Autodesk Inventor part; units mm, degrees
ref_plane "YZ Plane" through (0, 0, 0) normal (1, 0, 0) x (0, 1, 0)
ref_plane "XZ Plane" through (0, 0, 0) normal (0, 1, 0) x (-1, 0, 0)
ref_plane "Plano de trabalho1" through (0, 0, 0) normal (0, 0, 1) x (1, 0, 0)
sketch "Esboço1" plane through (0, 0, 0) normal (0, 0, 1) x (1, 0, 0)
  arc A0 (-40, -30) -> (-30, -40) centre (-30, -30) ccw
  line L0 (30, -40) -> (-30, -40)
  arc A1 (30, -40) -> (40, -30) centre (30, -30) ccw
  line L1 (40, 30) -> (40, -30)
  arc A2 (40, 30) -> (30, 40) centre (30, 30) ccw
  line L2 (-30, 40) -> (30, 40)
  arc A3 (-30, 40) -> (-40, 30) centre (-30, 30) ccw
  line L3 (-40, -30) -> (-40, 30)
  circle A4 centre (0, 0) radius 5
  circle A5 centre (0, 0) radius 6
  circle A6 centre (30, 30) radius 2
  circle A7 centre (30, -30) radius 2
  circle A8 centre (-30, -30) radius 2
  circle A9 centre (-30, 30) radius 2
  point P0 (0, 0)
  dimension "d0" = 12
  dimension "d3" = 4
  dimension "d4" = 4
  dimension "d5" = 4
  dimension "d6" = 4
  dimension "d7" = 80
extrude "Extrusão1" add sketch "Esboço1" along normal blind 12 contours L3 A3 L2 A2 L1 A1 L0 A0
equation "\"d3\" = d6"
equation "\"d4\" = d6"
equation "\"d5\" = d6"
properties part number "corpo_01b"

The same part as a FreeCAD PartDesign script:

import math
import FreeCAD as App
import Part
import Sketcher
Q = App.Units.Quantity

doc = App.newDocument("Part")
params = doc.addObject("Spreadsheet::Sheet", "Params")
for row, (alias, value) in enumerate([
    ("sketch1_diameter", "4 mm"),
    ("sketch1_diameter2", "12 mm"),
    ("sketch1_radius", "10 mm"),
    ("sketch1_width", "60 mm"),
    ("pad1_length", "12 mm"),
], start=1):
    params.set(f"A{row}", alias)
    params.set(f"B{row}", "=" + value)
    params.setAlias(f"B{row}", alias)

body = doc.addObject("PartDesign::Body", "Body")

# Sketch on XY plane
sketch1 = doc.addObject("Sketcher::SketchObject", "Sketch")
body.addObject(sketch1)
sketch1.AttachmentSupport = (doc.XY_Plane, [""])
sketch1.MapMode = "FlatFace"
sketch1.addGeometry(Part.LineSegment(App.Vector(-40, 30, 0), App.Vector(-40, -30, 0)), False)
sketch1.addGeometry(Part.ArcOfCircle(Part.Circle(App.Vector(-30, -30, 0), App.Vector(0, 0, 1), 10), math.radians(180), math.radians(270)), False)
sketch1.addGeometry(Part.LineSegment(App.Vector(-30, -40, 0), App.Vector(30, -40, 0)), False)
sketch1.addGeometry(Part.ArcOfCircle(Part.Circle(App.Vector(30, -30, 0), App.Vector(0, 0, 1), 10), math.radians(-90), math.radians(0)), False)
sketch1.addGeometry(Part.LineSegment(App.Vector(40, -30, 0), App.Vector(40, 30, 0)), False)
sketch1.addGeometry(Part.ArcOfCircle(Part.Circle(App.Vector(30, 30, 0), App.Vector(0, 0, 1), 10), math.radians(0), math.radians(90)), False)
sketch1.addGeometry(Part.LineSegment(App.Vector(30, 40, 0), App.Vector(-30, 40, 0)), False)
sketch1.addGeometry(Part.ArcOfCircle(Part.Circle(App.Vector(-30, 30, 0), App.Vector(0, 0, 1), 10), math.radians(90), math.radians(180)), False)
sketch1.addGeometry(Part.Circle(App.Vector(-30, -30, 0), App.Vector(0, 0, 1), 2), False)
sketch1.addGeometry(Part.Circle(App.Vector(30, -30, 0), App.Vector(0, 0, 1), 2), False)
sketch1.addGeometry(Part.Circle(App.Vector(-30, 30, 0), App.Vector(0, 0, 1), 2), False)
sketch1.addGeometry(Part.Circle(App.Vector(0, 0, 0), App.Vector(0, 0, 1), 6), False)
sketch1.addGeometry(Part.Circle(App.Vector(30, 30, 0), App.Vector(0, 0, 1), 2), False)
sketch1.addConstraint(Sketcher.Constraint("Tangent", 0, 2, 1, 1))
sketch1.addConstraint(Sketcher.Constraint("Tangent", 1, 2, 2, 1))
sketch1.addConstraint(Sketcher.Constraint("Tangent", 2, 2, 3, 1))
sketch1.addConstraint(Sketcher.Constraint("Tangent", 3, 2, 4, 1))
sketch1.addConstraint(Sketcher.Constraint("Tangent", 4, 2, 5, 1))
sketch1.addConstraint(Sketcher.Constraint("Tangent", 5, 2, 6, 1))
sketch1.addConstraint(Sketcher.Constraint("Tangent", 6, 2, 7, 1))
sketch1.addConstraint(Sketcher.Constraint("Tangent", 7, 2, 0, 1))
sketch1.addConstraint(Sketcher.Constraint("Vertical", 0))
sketch1.addConstraint(Sketcher.Constraint("Horizontal", 2))
sketch1.addConstraint(Sketcher.Constraint("Vertical", 4))
sketch1.addConstraint(Sketcher.Constraint("Horizontal", 6))
sketch1.addConstraint(Sketcher.Constraint("Coincident", 11, 3, -1, 1))
sketch1.addConstraint(Sketcher.Constraint("Coincident", 8, 3, 1, 3))
sketch1.addConstraint(Sketcher.Constraint("Coincident", 9, 3, 3, 3))
sketch1.addConstraint(Sketcher.Constraint("Coincident", 10, 3, 7, 3))
sketch1.addConstraint(Sketcher.Constraint("Coincident", 12, 3, 5, 3))
sketch1.addConstraint(Sketcher.Constraint("Equal", 1, 3))
sketch1.addConstraint(Sketcher.Constraint("Equal", 3, 5))
sketch1.addConstraint(Sketcher.Constraint("Equal", 5, 7))
sketch1.addConstraint(Sketcher.Constraint("Equal", 8, 9))
sketch1.addConstraint(Sketcher.Constraint("Equal", 9, 10))
sketch1.addConstraint(Sketcher.Constraint("Equal", 10, 12))
sketch1.addConstraint(Sketcher.Constraint("Symmetric", 1, 3, 5, 3, -1, 1))
sketch1.addConstraint(Sketcher.Constraint("Equal", 6, 0))
sketch1.addConstraint(Sketcher.Constraint("Diameter", 8, Q("4 mm")))
sketch1.addConstraint(Sketcher.Constraint("Diameter", 11, Q("12 mm")))
sketch1.addConstraint(Sketcher.Constraint("Radius", 1, Q("10 mm")))
sketch1.addConstraint(Sketcher.Constraint("DistanceX", 2, 1, 2, 2, Q("60 mm")))
sketch1.setExpression("Constraints[25]", "Params.sketch1_diameter")
sketch1.setExpression("Constraints[26]", "Params.sketch1_diameter2")
sketch1.setExpression("Constraints[27]", "Params.sketch1_radius")
sketch1.setExpression("Constraints[28]", "Params.sketch1_width")
pad1 = doc.addObject("PartDesign::Pad", "Pad")
body.addObject(pad1)
pad1.Profile = sketch1
pad1.setExpression("Length", "Params.pad1_length")

doc.recompute()
